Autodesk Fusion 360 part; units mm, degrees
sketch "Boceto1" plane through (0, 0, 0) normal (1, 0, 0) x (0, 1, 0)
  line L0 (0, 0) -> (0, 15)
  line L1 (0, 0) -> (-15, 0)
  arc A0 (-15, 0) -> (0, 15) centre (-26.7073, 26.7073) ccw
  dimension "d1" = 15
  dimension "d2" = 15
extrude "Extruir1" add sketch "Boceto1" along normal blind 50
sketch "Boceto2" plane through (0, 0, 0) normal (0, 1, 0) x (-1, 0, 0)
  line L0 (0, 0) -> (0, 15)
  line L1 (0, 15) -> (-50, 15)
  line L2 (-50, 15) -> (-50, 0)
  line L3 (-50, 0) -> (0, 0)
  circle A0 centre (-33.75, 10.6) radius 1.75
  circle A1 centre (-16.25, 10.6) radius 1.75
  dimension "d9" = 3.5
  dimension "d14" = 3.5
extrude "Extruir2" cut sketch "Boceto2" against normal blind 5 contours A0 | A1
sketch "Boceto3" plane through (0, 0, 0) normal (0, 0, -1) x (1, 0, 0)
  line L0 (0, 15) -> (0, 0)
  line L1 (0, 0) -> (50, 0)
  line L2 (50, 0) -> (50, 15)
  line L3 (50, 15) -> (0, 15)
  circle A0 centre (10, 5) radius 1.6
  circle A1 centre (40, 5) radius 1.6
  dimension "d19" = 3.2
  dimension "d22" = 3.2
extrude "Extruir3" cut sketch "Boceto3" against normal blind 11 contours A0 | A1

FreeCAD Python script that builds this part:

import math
import FreeCAD as App
import Part
import Sketcher

doc = App.newDocument("Part")
body = doc.addObject("PartDesign::Body", "Body")

# Sketch on YZ plane
sketch1 = body.newObject("Sketcher::SketchObject", "Sketch")
sketch1.AttachmentSupport = (doc.getObject("YZ_Plane"), [""])
sketch1.MapMode = "FlatFace"
sketch1.addGeometry([
    Part.LineSegment(App.Vector(-15, 0, 0), App.Vector(0, 0, 0)),
    Part.LineSegment(App.Vector(0, 0, 0), App.Vector(0, 15, 0)),
    Part.ArcOfCircle(Part.Circle(App.Vector(-27, 27, 0), App.Vector(0, 0, 1), 29), math.radians(-66), math.radians(-24)),
], False)
sketch1.addConstraint([
    Sketcher.Constraint("Coincident", 0, 2, 1, 1),
    Sketcher.Constraint("Coincident", 1, 2, 2, 2),
    Sketcher.Constraint("Coincident", 2, 1, 0, 1),
    Sketcher.Constraint("Horizontal", 0),
    Sketcher.Constraint("Vertical", 1),
    Sketcher.Constraint("Coincident", 0, 2, -1, 1),
    Sketcher.Constraint("Equal", 0, 1),
    Sketcher.Constraint("DistanceX", 0, 1, 0, 2, 15.0),
    Sketcher.Constraint("Radius", 2, 29.1606),
])
pad1 = body.newObject("PartDesign::Pad", "Pad")
pad1.Profile = sketch1
pad1.Length = 50

# Sketch on XZ plane
sketch2 = body.newObject("Sketcher::SketchObject", "Sketch001")
sketch2.AttachmentSupport = (doc.getObject("XZ_Plane"), [""])
sketch2.MapMode = "FlatFace"
sketch2.addGeometry([
    Part.Circle(App.Vector(33.8, 10.6, 0), App.Vector(0, 0, 1), 1.8),
    Part.Circle(App.Vector(16.2, 10.6, 0), App.Vector(0, 0, 1), 1.8),
], False)
sketch2.addConstraint([
    Sketcher.Constraint("Equal", 0, 1),
    Sketcher.Constraint("Horizontal", 0, 3, 1, 3),
    Sketcher.Constraint("Diameter", 0, 3.5),
    Sketcher.Constraint("DistanceY", -1, 1, 0, 3, 10.6),
    Sketcher.Constraint("DistanceX", 1, 3, 0, 3, 17.5),
    Sketcher.Constraint("DistanceX", -1, 1, 0, 3, 33.75),
])
pocket1 = body.newObject("PartDesign::Pocket", "Pocket")
pocket1.Profile = sketch2
pocket1.Length = 5
pocket1.Reversed = True

# Sketch on XY plane
sketch3 = body.newObject("Sketcher::SketchObject", "Sketch002")
sketch3.AttachmentSupport = (doc.getObject("XY_Plane"), [""])
sketch3.MapMode = "FlatFace"
sketch3.addGeometry([
    Part.Circle(App.Vector(10, -5, 0), App.Vector(0, 0, 1), 1.6),
    Part.Circle(App.Vector(40, -5, 0), App.Vector(0, 0, 1), 1.6),
], False)
sketch3.addConstraint([
    Sketcher.Constraint("Equal", 0, 1),
    Sketcher.Constraint("Horizontal", 0, 3, 1, 3),
    Sketcher.Constraint("Diameter", 0, 3.2),
    Sketcher.Constraint("DistanceX", -1, 1, 0, 3, 10.0),
    Sketcher.Constraint("DistanceY", 0, 3, -1, 1, 5.0),
    Sketcher.Constraint("DistanceX", -1, 1, 1, 3, 40.0),
])
pocket2 = body.newObject("PartDesign::Pocket", "Pocket001")
pocket2.Profile = sketch3
pocket2.Length = 11
pocket2.Reversed = True

doc.recompute()
